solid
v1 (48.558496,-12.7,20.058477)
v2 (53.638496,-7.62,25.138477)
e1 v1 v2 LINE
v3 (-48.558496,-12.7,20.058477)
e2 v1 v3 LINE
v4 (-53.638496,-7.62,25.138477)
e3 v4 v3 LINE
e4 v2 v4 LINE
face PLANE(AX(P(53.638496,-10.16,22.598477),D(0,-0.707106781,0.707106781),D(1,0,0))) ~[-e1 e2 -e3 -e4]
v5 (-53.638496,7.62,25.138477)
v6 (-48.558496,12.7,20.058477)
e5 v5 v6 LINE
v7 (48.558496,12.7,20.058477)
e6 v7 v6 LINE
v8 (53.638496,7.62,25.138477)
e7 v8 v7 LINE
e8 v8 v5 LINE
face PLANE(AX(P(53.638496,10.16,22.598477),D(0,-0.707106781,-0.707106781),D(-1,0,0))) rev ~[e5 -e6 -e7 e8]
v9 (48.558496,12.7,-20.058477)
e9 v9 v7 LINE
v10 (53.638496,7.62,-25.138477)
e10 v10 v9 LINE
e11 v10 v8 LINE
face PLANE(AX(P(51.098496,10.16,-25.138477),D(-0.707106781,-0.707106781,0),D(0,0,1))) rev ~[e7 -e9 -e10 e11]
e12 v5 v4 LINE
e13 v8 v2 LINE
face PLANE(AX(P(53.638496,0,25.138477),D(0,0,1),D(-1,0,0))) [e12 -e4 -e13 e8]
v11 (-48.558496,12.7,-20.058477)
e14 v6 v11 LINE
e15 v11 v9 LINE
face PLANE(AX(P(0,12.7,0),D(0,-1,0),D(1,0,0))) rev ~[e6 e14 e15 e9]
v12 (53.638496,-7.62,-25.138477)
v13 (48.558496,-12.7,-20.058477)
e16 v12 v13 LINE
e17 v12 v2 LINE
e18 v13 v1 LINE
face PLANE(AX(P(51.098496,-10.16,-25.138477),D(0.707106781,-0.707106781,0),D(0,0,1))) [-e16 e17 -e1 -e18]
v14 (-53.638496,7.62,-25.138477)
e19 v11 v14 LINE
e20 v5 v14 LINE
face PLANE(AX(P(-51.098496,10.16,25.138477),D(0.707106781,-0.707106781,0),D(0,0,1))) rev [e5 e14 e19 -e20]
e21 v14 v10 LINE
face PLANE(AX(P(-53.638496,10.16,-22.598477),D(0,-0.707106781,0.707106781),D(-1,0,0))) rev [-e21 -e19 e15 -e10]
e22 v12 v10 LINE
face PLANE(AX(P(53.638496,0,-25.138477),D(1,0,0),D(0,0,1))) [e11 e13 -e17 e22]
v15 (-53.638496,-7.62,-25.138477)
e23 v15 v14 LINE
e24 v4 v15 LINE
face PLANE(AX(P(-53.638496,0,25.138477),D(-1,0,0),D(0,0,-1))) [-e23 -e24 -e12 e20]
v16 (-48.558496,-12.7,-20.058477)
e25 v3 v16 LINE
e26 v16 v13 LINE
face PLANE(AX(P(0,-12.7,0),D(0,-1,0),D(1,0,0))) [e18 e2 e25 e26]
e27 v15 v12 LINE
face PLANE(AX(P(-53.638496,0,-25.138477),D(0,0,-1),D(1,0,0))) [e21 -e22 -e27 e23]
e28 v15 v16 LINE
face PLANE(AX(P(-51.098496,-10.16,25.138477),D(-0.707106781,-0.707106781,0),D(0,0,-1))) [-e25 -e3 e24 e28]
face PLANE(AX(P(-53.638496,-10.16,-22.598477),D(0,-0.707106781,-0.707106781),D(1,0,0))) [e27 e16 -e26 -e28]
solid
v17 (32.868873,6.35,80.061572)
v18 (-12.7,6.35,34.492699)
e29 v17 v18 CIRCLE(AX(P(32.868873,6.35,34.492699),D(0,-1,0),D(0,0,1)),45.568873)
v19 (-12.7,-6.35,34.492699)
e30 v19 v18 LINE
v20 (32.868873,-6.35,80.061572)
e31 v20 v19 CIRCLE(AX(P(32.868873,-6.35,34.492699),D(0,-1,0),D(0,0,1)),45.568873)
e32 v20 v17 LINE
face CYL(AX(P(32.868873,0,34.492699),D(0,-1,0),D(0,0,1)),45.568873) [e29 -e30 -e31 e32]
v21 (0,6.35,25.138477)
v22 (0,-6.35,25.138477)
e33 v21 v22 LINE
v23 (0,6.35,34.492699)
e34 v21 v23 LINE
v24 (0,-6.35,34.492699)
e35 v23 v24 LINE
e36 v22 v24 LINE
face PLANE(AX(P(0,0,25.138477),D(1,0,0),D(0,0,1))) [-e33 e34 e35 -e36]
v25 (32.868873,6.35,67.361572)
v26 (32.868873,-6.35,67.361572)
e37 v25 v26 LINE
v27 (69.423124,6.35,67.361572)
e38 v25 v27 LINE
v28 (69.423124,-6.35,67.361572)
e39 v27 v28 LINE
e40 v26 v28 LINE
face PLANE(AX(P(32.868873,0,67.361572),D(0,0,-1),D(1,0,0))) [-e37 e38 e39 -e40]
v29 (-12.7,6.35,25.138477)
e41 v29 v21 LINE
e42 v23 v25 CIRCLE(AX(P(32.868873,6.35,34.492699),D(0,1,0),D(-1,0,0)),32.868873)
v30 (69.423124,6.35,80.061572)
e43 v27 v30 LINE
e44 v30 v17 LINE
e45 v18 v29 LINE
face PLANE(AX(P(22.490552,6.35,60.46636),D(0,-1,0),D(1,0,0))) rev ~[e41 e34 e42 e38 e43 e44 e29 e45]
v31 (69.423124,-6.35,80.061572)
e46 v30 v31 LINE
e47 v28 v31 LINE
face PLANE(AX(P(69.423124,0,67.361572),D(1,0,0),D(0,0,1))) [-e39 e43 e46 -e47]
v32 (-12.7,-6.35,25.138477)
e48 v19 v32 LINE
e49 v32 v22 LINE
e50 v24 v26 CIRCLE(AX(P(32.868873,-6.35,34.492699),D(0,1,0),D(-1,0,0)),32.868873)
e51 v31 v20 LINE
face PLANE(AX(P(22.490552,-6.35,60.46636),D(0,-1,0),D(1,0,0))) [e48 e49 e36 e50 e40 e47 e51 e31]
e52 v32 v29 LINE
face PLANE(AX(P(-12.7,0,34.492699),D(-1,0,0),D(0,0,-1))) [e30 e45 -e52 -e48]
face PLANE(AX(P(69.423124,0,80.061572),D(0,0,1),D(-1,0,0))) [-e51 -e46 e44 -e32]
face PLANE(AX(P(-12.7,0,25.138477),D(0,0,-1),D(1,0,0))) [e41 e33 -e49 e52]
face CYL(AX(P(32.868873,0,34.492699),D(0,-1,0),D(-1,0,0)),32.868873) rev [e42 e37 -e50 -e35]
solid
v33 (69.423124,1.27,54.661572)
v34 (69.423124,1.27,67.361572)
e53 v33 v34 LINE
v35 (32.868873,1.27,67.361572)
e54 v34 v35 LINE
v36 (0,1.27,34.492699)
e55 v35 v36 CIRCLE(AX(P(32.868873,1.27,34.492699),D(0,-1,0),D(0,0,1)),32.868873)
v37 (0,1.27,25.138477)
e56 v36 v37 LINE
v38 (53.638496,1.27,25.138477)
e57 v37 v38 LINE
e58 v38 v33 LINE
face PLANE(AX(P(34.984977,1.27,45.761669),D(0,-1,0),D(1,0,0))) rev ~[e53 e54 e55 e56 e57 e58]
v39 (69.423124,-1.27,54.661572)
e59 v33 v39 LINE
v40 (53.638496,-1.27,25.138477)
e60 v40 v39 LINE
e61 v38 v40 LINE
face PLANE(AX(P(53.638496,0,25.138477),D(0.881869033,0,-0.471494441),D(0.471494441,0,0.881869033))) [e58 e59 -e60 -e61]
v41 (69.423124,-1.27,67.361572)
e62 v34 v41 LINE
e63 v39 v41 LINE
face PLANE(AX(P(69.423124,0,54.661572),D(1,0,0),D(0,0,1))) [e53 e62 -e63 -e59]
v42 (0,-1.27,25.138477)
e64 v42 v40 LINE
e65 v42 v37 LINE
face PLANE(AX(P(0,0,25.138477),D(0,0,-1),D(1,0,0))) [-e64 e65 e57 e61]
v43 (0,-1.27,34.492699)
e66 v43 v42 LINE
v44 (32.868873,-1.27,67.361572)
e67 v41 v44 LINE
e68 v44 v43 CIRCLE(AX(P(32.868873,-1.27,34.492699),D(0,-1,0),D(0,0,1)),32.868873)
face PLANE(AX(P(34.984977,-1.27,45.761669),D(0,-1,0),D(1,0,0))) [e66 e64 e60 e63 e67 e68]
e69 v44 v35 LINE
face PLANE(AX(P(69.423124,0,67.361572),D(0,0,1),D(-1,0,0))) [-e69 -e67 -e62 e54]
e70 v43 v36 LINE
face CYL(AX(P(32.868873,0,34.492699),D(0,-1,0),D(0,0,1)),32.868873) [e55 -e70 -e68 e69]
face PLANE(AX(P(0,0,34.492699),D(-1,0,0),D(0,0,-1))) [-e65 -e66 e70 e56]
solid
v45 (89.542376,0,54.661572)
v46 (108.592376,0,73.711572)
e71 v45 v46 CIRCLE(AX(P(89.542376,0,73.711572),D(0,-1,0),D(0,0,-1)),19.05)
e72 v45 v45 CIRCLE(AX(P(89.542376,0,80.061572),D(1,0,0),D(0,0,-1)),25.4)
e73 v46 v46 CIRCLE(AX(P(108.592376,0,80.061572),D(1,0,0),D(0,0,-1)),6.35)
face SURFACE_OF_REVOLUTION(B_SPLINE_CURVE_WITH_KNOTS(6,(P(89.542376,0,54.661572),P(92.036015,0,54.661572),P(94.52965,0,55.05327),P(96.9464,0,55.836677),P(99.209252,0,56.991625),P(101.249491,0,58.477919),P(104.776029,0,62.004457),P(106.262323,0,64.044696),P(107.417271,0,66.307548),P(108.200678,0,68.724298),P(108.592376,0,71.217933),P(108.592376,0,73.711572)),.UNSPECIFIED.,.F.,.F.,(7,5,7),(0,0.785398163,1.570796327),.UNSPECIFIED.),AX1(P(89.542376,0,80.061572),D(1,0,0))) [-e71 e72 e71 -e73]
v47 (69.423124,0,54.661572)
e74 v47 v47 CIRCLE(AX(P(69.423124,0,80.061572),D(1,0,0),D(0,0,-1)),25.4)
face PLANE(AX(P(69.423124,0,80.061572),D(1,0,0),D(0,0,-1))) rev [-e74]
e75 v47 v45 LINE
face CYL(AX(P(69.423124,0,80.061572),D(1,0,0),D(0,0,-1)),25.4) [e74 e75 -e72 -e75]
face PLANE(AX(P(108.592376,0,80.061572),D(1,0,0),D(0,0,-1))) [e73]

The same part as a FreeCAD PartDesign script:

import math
import FreeCAD as App
import Part
import Sketcher
from FreeCAD import Vector
Q = App.Units.Quantity


def edges_at(feature, points):
    """Names of the edges that pass closest to the given points."""
    edges = feature.Shape.Edges
    near = lambda p: min(range(len(edges)), key=lambda i: edges[i].distToShape(Part.Vertex(*p))[0])
    return sorted({f"Edge{near(p) + 1}" for p in points})

doc = App.newDocument("Part")
body = doc.addObject("PartDesign::Body", "Body")

sketch1 = body.newObject("Sketcher::SketchObject", "Sketch")
sketch1.AttachmentSupport = (doc.getObject("XZ_Plane"), [""])
sketch1.MapMode = "FlatFace"
sketch1.addGeometry([
    Part.LineSegment(Vector(54, -25, 0), Vector(54, 25, 0)),
    Part.LineSegment(Vector(54, 25, 0), Vector(-54, 25, 0)),
    Part.LineSegment(Vector(-54, 25, 0), Vector(-54, -25, 0)),
    Part.LineSegment(Vector(-54, -25, 0), Vector(54, -25, 0)),
], False)
sketch1.addConstraint([
    Sketcher.Constraint("Coincident", 0, 2, 1, 1),
    Sketcher.Constraint("Coincident", 1, 2, 2, 1),
    Sketcher.Constraint("Coincident", 2, 2, 3, 1),
    Sketcher.Constraint("Coincident", 3, 2, 0, 1),
    Sketcher.Constraint("Vertical", 0),
    Sketcher.Constraint("Horizontal", 1),
    Sketcher.Constraint("Vertical", 2),
    Sketcher.Constraint("Horizontal", 3),
    Sketcher.Constraint("Symmetric", 0, 2, 2, 2, -1, 1),
    Sketcher.Constraint("DistanceX", 1, 2, 1, 1, 107.276991),
    Sketcher.Constraint("DistanceY", 0, 1, 0, 2, 50.276954),
])
pad1 = body.newObject("PartDesign::Pad", "Pad")
pad1.Profile = sketch1
pad1.Length = Q("1 in")
pad1.Midplane = True
doc.recompute()

chamfer = body.newObject("PartDesign::Chamfer", "Chamfer")
chamfer.Base = (pad1, edges_at(pad1, [
    (-53.638, -12.7, 0),
    (0, -12.7, 25.138),
    (53.638, -12.7, 0),
    (0, -12.7, -25.138),
]))
chamfer.Size = Q("0.2 in")
doc.recompute()

chamfer2 = body.newObject("PartDesign::Chamfer", "Chamfer001")
chamfer2.Base = (chamfer, edges_at(chamfer, [
    (0, 12.7, 25.138),
    (53.638, 12.7, 0),
    (0, 12.7, -25.138),
    (-53.638, 12.7, 0),
]))
chamfer2.Size = Q("0.2 in")
body2 = doc.addObject("PartDesign::Body", "Body001")

sketch2 = body2.newObject("Sketcher::SketchObject", "Sketch001")
sketch2.AttachmentSupport = (doc.getObject("XZ_Plane001"), [""])
sketch2.MapMode = "FlatFace"
sketch2.addGeometry([
    Part.LineSegment(Vector(69, 55, 0), Vector(109, 55, 0)),
    Part.LineSegment(Vector(109, 55, 0), Vector(109, 80, 0)),
    Part.LineSegment(Vector(109, 80, 0), Vector(69, 80, 0)),
    Part.LineSegment(Vector(69, 80, 0), Vector(69, 55, 0)),
], False)
sketch2.addGeometry(Part.LineSegment(Vector(69, 80, 0), Vector(109, 80, 0)), True)
sketch2.addConstraint([
    Sketcher.Constraint("Coincident", 0, 2, 1, 1),
    Sketcher.Constraint("Coincident", 1, 2, 2, 1),
    Sketcher.Constraint("Coincident", 2, 2, 3, 1),
    Sketcher.Constraint("Coincident", 3, 2, 0, 1),
    Sketcher.Constraint("Horizontal", 0),
    Sketcher.Constraint("Vertical", 1),
    Sketcher.Constraint("Horizontal", 2),
    Sketcher.Constraint("Vertical", 3),
    Sketcher.Constraint("Horizontal", 4),
    Sketcher.Constraint("Coincident", 4, 1, 2, 2),
    Sketcher.Constraint("Vertical", 0, 2, 4, 2),
    Sketcher.Constraint("DistanceY", 1, 1, 1, 2, Q("1 in")),
    Sketcher.Constraint("DistanceX", 0, 1, 0, 2, 39.169252),
    Sketcher.Constraint("DistanceY", -1, 1, 0, 2, 54.661572),
    Sketcher.Constraint("DistanceX", -1, 1, 0, 2, 108.592376),
])
revolution = body2.newObject("PartDesign::Revolution", "Revolution")
revolution.Profile = sketch2
revolution.ReferenceAxis = (sketch2, ["Axis0"])
revolution.Angle = 360
doc.recompute()

fillet = body2.newObject("PartDesign::Fillet", "Fillet")
fillet.Base = (revolution, edges_at(revolution, [(108.592, 0, 105.462)]))
fillet.Radius = Q("0.75 in")
body3 = doc.addObject("PartDesign::Body", "Body002")

sketch3 = body3.newObject("Sketcher::SketchObject", "Sketch002")
sketch3.AttachmentSupport = (doc.getObject("XZ_Plane002"), [""])
sketch3.MapMode = "FlatFace"
sketch3.addGeometry([
    Part.LineSegment(Vector(-13, 25, 0), Vector(0, 25, 0)),
    Part.LineSegment(Vector(0, 25, 0), Vector(0, 34, 0)),
    Part.ArcOfCircle(Part.Circle(Vector(33, 34, 0), Vector(0, 0, 1), 33), math.radians(90), math.radians(180)),
    Part.LineSegment(Vector(33, 67, 0), Vector(69, 67, 0)),
    Part.LineSegment(Vector(69, 67, 0), Vector(69, 80, 0)),
    Part.LineSegment(Vector(69, 80, 0), Vector(33, 80, 0)),
    Part.ArcOfCircle(Part.Circle(Vector(33, 34, 0), Vector(0, 0, 1), 46), math.radians(90), math.radians(180)),
    Part.LineSegment(Vector(-13, 34, 0), Vector(-13, 25, 0)),
], False)
sketch3.addConstraint([
    Sketcher.Constraint("Coincident", 0, 2, 1, 1),
    Sketcher.Constraint("Tangent", 1, 2, 2, 2),
    Sketcher.Constraint("Tangent", 2, 1, 3, 1),
    Sketcher.Constraint("Coincident", 3, 2, 4, 1),
    Sketcher.Constraint("Coincident", 4, 2, 5, 1),
    Sketcher.Constraint("Tangent", 5, 2, 6, 1),
    Sketcher.Constraint("Tangent", 6, 2, 7, 1),
    Sketcher.Constraint("Coincident", 7, 2, 0, 1),
    Sketcher.Constraint("Horizontal", 0),
    Sketcher.Constraint("Vertical", 1),
    Sketcher.Constraint("Horizontal", 3),
    Sketcher.Constraint("Vertical", 4),
    Sketcher.Constraint("Horizontal", 5),
    Sketcher.Constraint("Vertical", 7),
    Sketcher.Constraint("Coincident", 6, 3, 2, 3),
    Sketcher.Constraint("PointOnObject", 0, 2, -2),
    Sketcher.Constraint("DistanceX", 0, 1, 0, 2, Q("0.5 in")),
    Sketcher.Constraint("Radius", 2, 32.868873),
    Sketcher.Constraint("DistanceX", 3, 1, 3, 2, 36.554251),
    Sketcher.Constraint("DistanceY", -1, 1, 2, 3, 34.492699),
    Sketcher.Constraint("DistanceY", 1, 1, 1, 2, 9.354222),
])
pad2 = body3.newObject("PartDesign::Pad", "Pad001")
pad2.Profile = sketch3
pad2.Length = Q("0.5 in")
pad2.Midplane = True
body4 = doc.addObject("PartDesign::Body", "Body003")

sketch4 = body4.newObject("Sketcher::SketchObject", "Sketch003")
sketch4.AttachmentSupport = (doc.getObject("XZ_Plane003"), [""])
sketch4.MapMode = "FlatFace"
sketch4.addGeometry([
    Part.LineSegment(Vector(0, 25, 0), Vector(54, 25, 0)),
    Part.LineSegment(Vector(54, 25, 0), Vector(69, 55, 0)),
    Part.LineSegment(Vector(69, 55, 0), Vector(69, 67, 0)),
    Part.LineSegment(Vector(69, 67, 0), Vector(33, 67, 0)),
    Part.ArcOfCircle(Part.Circle(Vector(33, 34, 0), Vector(0, 0, 1), 33), math.radians(90), math.radians(180)),
    Part.LineSegment(Vector(0, 34, 0), Vector(0, 25, 0)),
], False)
sketch4.addConstraint([
    Sketcher.Constraint("Coincident", 0, 2, 1, 1),
    Sketcher.Constraint("Coincident", 1, 2, 2, 1),
    Sketcher.Constraint("Coincident", 2, 2, 3, 1),
    Sketcher.Constraint("Tangent", 3, 2, 4, 1),
    Sketcher.Constraint("Tangent", 4, 2, 5, 1),
    Sketcher.Constraint("Coincident", 5, 2, 0, 1),
    Sketcher.Constraint("Horizontal", 0),
    Sketcher.Constraint("Vertical", 2),
    Sketcher.Constraint("Horizontal", 3),
    Sketcher.Constraint("Vertical", 5),
    Sketcher.Constraint("PointOnObject", 4, 2, -2),
    Sketcher.Constraint("DistanceY", 2, 1, 2, 2, Q("0.5 in")),
    Sketcher.Constraint("Radius", 4, 32.868873),
    Sketcher.Constraint("DistanceX", 3, 2, 3, 1, 36.554251),
    Sketcher.Constraint("DistanceY", -1, 1, 4, 3, 34.492699),
    Sketcher.Constraint("Distance", 1, 33.477868),
    Sketcher.Constraint("DistanceX", 0, 1, 0, 2, 53.638496),
])
pad3 = body4.newObject("PartDesign::Pad", "Pad002")
pad3.Profile = sketch4
pad3.Length = Q("0.1 in")
pad3.Midplane = True

doc.recompute()
